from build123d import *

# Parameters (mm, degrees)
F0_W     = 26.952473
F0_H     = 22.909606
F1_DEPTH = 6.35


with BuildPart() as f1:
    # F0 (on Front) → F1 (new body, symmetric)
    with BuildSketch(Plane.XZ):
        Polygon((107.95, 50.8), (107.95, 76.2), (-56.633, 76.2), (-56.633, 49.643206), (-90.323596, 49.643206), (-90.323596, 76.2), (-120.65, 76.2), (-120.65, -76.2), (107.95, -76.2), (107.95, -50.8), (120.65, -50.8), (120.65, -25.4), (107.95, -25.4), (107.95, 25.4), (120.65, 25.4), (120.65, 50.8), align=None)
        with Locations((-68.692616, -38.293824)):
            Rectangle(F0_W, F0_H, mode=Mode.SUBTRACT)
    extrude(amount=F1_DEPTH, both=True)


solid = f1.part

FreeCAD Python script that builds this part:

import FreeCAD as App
import Part
import Sketcher
Q = App.Units.Quantity


def add_polygon(sketch, points):
    """Adds a closed chain of lines whose ends are joined by coincident constraints."""
    first, n = sketch.GeometryCount, len(points)
    for a, b in zip(points, points[1:] + points[:1]):
        sketch.addGeometry(Part.LineSegment(App.Vector(*a, 0), App.Vector(*b, 0)), False)
    for i in range(n):
        sketch.addConstraint(Sketcher.Constraint("Coincident", first + i, 2, first + (i + 1) % n, 1))

doc = App.newDocument("Part")
params = doc.addObject("Spreadsheet::Sheet", "Params")
for row, (alias, value) in enumerate([
    ("sketch1_width", "9 in"),
    ("sketch1_height", "1 in"),
    ("sketch1_height2", "6 in"),
    ("sketch1_width2", "0.5 in"),
    ("pad1_length", "0.5 in"),
], start=1):
    params.set(f"A{row}", alias)
    params.set(f"B{row}", "=" + value)
    params.setAlias(f"B{row}", alias)

body = doc.addObject("PartDesign::Body", "Body")

# Sketch on XZ plane
sketch1 = body.newObject("Sketcher::SketchObject", "Sketch")
sketch1.AttachmentSupport = (doc.getObject("XZ_Plane"), [""])
sketch1.MapMode = "FlatFace"
add_polygon(sketch1, [(107.95, 50.8), (107.95, 76.2), (-56.633, 76.2), (-56.633, 49.643206), (-90.323596, 49.643206), (-90.323596, 76.2), (-120.65, 76.2), (-120.65, -76.2), (107.95, -76.2), (107.95, -50.8), (120.65, -50.8), (120.65, -25.4), (107.95, -25.4), (107.95, 25.4), (120.65, 25.4), (120.65, 50.8)])  # lines 0-15
add_polygon(sketch1, [(-55.21638, -49.748627), (-82.168852, -49.748627), (-82.168852, -26.839021), (-55.21638, -26.839021)])  # lines 16-19
sketch1.addConstraint([
    Sketcher.Constraint("Vertical", 0),
    Sketcher.Constraint("Horizontal", 1),
    Sketcher.Constraint("Vertical", 2),
    Sketcher.Constraint("Horizontal", 3),
    Sketcher.Constraint("Vertical", 4),
    Sketcher.Constraint("Horizontal", 5),
    Sketcher.Constraint("Vertical", 6),
    Sketcher.Constraint("Horizontal", 7),
    Sketcher.Constraint("Vertical", 8),
    Sketcher.Constraint("Horizontal", 9),
    Sketcher.Constraint("Vertical", 10),
    Sketcher.Constraint("Horizontal", 11),
    Sketcher.Constraint("Vertical", 12),
    Sketcher.Constraint("Horizontal", 13),
    Sketcher.Constraint("Vertical", 14),
    Sketcher.Constraint("Horizontal", 15),
    Sketcher.Constraint("Horizontal", 16),
    Sketcher.Constraint("Vertical", 17),
    Sketcher.Constraint("Horizontal", 18),
    Sketcher.Constraint("Vertical", 19),
    Sketcher.Constraint("Symmetric", 0, 2, 7, 2, -1),
    Sketcher.Constraint("Symmetric", 10, 2, 13, 2, -1),
    Sketcher.Constraint("Horizontal", 1, 2, 4, 2),
    Sketcher.Constraint("Vertical", 8, 2, 11, 2),
    Sketcher.Constraint("Equal", 0, 8),
    Sketcher.Constraint("Equal", 8, 10),
    Sketcher.Constraint("DistanceX", 7, 1, 7, 2, Q("9 in")),
    Sketcher.Constraint("DistanceY", 0, 1, 0, 2, Q("1 in")),
    Sketcher.Constraint("DistanceY", 6, 2, 6, 1, Q("6 in")),
    Sketcher.Constraint("DistanceX", 9, 1, 9, 2, Q("0.5 in")),
    Sketcher.Constraint("DistanceX", -1, 1, 0, 2, Q("4.25 in")),
    Sketcher.Constraint("DistanceX", 1, 2, 1, 1, 164.583),
    Sketcher.Constraint("DistanceX", 3, 2, 3, 1, 33.690596),
    Sketcher.Constraint("DistanceX", 16, 2, 16, 1, 26.952473),
    Sketcher.Constraint("DistanceY", 2, 2, 2, 1, 26.556794),
    Sketcher.Constraint("DistanceY", 17, 1, 17, 2, 22.909606),
    Sketcher.Constraint("DistanceY", 17, 2, -1, 1, 26.839021),
    Sketcher.Constraint("DistanceX", 18, 2, -1, 1, 55.21638),
])
sketch1.setExpression("Constraints[46]", "Params.sketch1_width")
sketch1.setExpression("Constraints[47]", "Params.sketch1_height")
sketch1.setExpression("Constraints[48]", "Params.sketch1_height2")
sketch1.setExpression("Constraints[49]", "Params.sketch1_width2")
pad1 = body.newObject("PartDesign::Pad", "Pad")
pad1.Profile = sketch1
pad1.setExpression("Length", "Params.pad1_length")
pad1.Midplane = True

doc.recompute()
